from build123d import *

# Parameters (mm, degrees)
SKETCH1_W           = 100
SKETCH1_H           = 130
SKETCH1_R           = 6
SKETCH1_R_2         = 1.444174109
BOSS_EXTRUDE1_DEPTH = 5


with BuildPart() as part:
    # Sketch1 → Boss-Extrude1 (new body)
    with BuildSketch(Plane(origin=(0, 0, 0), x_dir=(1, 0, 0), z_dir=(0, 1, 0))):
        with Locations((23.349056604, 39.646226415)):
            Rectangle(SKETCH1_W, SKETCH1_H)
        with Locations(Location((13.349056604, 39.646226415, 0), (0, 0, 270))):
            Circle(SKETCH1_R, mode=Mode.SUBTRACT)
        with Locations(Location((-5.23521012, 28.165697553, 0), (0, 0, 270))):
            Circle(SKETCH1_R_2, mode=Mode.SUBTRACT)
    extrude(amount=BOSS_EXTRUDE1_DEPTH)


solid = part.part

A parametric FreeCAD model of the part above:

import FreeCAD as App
import Part
import Sketcher
from FreeCAD import Vector


def add_polygon(sketch, points):
    """Adds a closed chain of lines whose ends are joined by coincident constraints."""
    first, n = sketch.GeometryCount, len(points)
    for a, b in zip(points, points[1:] + points[:1]):
        sketch.addGeometry(Part.LineSegment(App.Vector(*a, 0), App.Vector(*b, 0)), False)
    for i in range(n):
        sketch.addConstraint(Sketcher.Constraint("Coincident", first + i, 2, first + (i + 1) % n, 1))

doc = App.newDocument("Part")
body = doc.addObject("PartDesign::Body", "Body")

# Sketch on XZ plane
sketch1 = body.newObject("Sketcher::SketchObject", "Sketch")
sketch1.AttachmentSupport = (doc.getObject("XZ_Plane"), [""])
sketch1.MapMode = "FlatFace"
add_polygon(sketch1, [(-26.7, -104.6), (-26.7, 25.4), (73.3, 25.4), (73.3, -104.6)])  # lines 0-3
sketch1.addGeometry(Part.Circle(Vector(-5.2, -28.2, 0), Vector(0, 0, 1), 1.4), False)  # 4
sketch1.addGeometry(Part.Circle(Vector(13.3, -39.6, 0), Vector(0, 0, 1), 6), False)  # 5
sketch1.addConstraint(Sketcher.Constraint("Vertical", 0))
sketch1.addConstraint(Sketcher.Constraint("Horizontal", 1))
sketch1.addConstraint(Sketcher.Constraint("Vertical", 2))
sketch1.addConstraint(Sketcher.Constraint("Horizontal", 3))
sketch1.addConstraint(Sketcher.Constraint("Diameter", 5, 12.0))
sketch1.addConstraint(Sketcher.Constraint("DistanceX", 1, 1, 1, 2, 100.0))
sketch1.addConstraint(Sketcher.Constraint("DistanceY", 0, 1, 0, 2, 130.0))
sketch1.addConstraint(Sketcher.Constraint("DistanceX", 0, 2, 5, 3, 40.0))
sketch1.addConstraint(Sketcher.Constraint("DistanceY", 5, 3, 0, 2, 65.0))
sketch1.addConstraint(Sketcher.Constraint("Diameter", 4, 2.888348))
sketch1.addConstraint(Sketcher.Constraint("DistanceX", 4, 3, -1, 1, 5.23521))
sketch1.addConstraint(Sketcher.Constraint("DistanceY", 5, 3, 4, 3, 11.480529))
sketch1.addConstraint(Sketcher.Constraint("DistanceY", 4, 3, -1, 1, 28.165698))
sketch1.addConstraint(Sketcher.Constraint("DistanceX", -1, 1, 5, 3, 13.349057))
pad1 = body.newObject("PartDesign::Pad", "Pad")
pad1.Profile = sketch1
pad1.Length = 5
pad1.Reversed = True

doc.recompute()
